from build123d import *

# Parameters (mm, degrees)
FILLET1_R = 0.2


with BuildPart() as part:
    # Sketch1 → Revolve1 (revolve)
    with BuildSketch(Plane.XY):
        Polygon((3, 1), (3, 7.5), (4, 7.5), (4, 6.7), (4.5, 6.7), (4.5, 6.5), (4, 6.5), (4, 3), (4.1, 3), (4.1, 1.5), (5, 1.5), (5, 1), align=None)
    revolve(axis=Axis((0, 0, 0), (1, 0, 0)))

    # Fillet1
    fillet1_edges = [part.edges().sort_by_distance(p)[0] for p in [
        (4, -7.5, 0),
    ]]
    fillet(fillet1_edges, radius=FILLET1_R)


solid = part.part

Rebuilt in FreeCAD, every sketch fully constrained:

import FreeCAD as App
import Part
import Sketcher
from FreeCAD import Vector


def edges_at(feature, points):
    """Names of the edges that pass closest to the given points."""
    edges = feature.Shape.Edges
    near = lambda p: min(range(len(edges)), key=lambda i: edges[i].distToShape(Part.Vertex(*p))[0])
    return sorted({f"Edge{near(p) + 1}" for p in points})


def add_polygon(sketch, points):
    """Adds a closed chain of lines whose ends are joined by coincident constraints."""
    first, n = sketch.GeometryCount, len(points)
    for a, b in zip(points, points[1:] + points[:1]):
        sketch.addGeometry(Part.LineSegment(App.Vector(*a, 0), App.Vector(*b, 0)), False)
    for i in range(n):
        sketch.addConstraint(Sketcher.Constraint("Coincident", first + i, 2, first + (i + 1) % n, 1))

doc = App.newDocument("Part")
body = doc.addObject("PartDesign::Body", "Body")

sketch1 = body.newObject("Sketcher::SketchObject", "Sketch")
sketch1.AttachmentSupport = (doc.getObject("XY_Plane"), [""])
sketch1.MapMode = "FlatFace"
add_polygon(sketch1, [(3, 7.5), (3, 1), (5, 1), (5, 1.5), (4.1, 1.5), (4.1, 3), (4, 3), (4, 6.5), (4.5, 6.5), (4.5, 6.7), (4, 6.7), (4, 7.5)])
sketch1.addConstraint([
    Sketcher.Constraint("Vertical", 0),
    Sketcher.Constraint("Horizontal", 1),
    Sketcher.Constraint("Vertical", 2),
    Sketcher.Constraint("Horizontal", 3),
    Sketcher.Constraint("Vertical", 4),
    Sketcher.Constraint("Horizontal", 5),
    Sketcher.Constraint("Vertical", 6),
    Sketcher.Constraint("Horizontal", 7),
    Sketcher.Constraint("Vertical", 8),
    Sketcher.Constraint("Horizontal", 9),
    Sketcher.Constraint("Vertical", 10),
    Sketcher.Constraint("Horizontal", 11),
    Sketcher.Constraint("Vertical", 6, 2, 9, 2),
    Sketcher.Constraint("Equal", 9, 2),
    Sketcher.Constraint("DistanceX", 1, 1, 1, 2, 2.0),
    Sketcher.Constraint("DistanceX", 11, 2, 11, 1, 1.0),
    Sketcher.Constraint("DistanceX", 3, 2, 3, 1, 0.9),
    Sketcher.Constraint("DistanceX", 7, 1, 7, 2, 0.5),
    Sketcher.Constraint("DistanceY", 0, 2, 0, 1, 6.5),
    Sketcher.Constraint("DistanceY", 4, 1, 4, 2, 1.5),
    Sketcher.Constraint("DistanceY", 6, 1, 6, 2, 3.5),
    Sketcher.Constraint("DistanceY", 8, 1, 8, 2, 0.2),
    Sketcher.Constraint("DistanceX", -1, 1, 0, 2, 3.0),
    Sketcher.Constraint("DistanceY", -1, 1, 0, 2, 1.0),
])
revolution = body.newObject("PartDesign::Revolution", "Revolution")
revolution.Profile = sketch1
revolution.ReferenceAxis = (sketch1, ["H_Axis"])
revolution.Angle = 360
doc.recompute()

fillet = body.newObject("PartDesign::Fillet", "Fillet")
fillet.Base = (revolution, edges_at(revolution, [(4, -7.5, 0)]))
fillet.Radius = 0.2

doc.recompute()
